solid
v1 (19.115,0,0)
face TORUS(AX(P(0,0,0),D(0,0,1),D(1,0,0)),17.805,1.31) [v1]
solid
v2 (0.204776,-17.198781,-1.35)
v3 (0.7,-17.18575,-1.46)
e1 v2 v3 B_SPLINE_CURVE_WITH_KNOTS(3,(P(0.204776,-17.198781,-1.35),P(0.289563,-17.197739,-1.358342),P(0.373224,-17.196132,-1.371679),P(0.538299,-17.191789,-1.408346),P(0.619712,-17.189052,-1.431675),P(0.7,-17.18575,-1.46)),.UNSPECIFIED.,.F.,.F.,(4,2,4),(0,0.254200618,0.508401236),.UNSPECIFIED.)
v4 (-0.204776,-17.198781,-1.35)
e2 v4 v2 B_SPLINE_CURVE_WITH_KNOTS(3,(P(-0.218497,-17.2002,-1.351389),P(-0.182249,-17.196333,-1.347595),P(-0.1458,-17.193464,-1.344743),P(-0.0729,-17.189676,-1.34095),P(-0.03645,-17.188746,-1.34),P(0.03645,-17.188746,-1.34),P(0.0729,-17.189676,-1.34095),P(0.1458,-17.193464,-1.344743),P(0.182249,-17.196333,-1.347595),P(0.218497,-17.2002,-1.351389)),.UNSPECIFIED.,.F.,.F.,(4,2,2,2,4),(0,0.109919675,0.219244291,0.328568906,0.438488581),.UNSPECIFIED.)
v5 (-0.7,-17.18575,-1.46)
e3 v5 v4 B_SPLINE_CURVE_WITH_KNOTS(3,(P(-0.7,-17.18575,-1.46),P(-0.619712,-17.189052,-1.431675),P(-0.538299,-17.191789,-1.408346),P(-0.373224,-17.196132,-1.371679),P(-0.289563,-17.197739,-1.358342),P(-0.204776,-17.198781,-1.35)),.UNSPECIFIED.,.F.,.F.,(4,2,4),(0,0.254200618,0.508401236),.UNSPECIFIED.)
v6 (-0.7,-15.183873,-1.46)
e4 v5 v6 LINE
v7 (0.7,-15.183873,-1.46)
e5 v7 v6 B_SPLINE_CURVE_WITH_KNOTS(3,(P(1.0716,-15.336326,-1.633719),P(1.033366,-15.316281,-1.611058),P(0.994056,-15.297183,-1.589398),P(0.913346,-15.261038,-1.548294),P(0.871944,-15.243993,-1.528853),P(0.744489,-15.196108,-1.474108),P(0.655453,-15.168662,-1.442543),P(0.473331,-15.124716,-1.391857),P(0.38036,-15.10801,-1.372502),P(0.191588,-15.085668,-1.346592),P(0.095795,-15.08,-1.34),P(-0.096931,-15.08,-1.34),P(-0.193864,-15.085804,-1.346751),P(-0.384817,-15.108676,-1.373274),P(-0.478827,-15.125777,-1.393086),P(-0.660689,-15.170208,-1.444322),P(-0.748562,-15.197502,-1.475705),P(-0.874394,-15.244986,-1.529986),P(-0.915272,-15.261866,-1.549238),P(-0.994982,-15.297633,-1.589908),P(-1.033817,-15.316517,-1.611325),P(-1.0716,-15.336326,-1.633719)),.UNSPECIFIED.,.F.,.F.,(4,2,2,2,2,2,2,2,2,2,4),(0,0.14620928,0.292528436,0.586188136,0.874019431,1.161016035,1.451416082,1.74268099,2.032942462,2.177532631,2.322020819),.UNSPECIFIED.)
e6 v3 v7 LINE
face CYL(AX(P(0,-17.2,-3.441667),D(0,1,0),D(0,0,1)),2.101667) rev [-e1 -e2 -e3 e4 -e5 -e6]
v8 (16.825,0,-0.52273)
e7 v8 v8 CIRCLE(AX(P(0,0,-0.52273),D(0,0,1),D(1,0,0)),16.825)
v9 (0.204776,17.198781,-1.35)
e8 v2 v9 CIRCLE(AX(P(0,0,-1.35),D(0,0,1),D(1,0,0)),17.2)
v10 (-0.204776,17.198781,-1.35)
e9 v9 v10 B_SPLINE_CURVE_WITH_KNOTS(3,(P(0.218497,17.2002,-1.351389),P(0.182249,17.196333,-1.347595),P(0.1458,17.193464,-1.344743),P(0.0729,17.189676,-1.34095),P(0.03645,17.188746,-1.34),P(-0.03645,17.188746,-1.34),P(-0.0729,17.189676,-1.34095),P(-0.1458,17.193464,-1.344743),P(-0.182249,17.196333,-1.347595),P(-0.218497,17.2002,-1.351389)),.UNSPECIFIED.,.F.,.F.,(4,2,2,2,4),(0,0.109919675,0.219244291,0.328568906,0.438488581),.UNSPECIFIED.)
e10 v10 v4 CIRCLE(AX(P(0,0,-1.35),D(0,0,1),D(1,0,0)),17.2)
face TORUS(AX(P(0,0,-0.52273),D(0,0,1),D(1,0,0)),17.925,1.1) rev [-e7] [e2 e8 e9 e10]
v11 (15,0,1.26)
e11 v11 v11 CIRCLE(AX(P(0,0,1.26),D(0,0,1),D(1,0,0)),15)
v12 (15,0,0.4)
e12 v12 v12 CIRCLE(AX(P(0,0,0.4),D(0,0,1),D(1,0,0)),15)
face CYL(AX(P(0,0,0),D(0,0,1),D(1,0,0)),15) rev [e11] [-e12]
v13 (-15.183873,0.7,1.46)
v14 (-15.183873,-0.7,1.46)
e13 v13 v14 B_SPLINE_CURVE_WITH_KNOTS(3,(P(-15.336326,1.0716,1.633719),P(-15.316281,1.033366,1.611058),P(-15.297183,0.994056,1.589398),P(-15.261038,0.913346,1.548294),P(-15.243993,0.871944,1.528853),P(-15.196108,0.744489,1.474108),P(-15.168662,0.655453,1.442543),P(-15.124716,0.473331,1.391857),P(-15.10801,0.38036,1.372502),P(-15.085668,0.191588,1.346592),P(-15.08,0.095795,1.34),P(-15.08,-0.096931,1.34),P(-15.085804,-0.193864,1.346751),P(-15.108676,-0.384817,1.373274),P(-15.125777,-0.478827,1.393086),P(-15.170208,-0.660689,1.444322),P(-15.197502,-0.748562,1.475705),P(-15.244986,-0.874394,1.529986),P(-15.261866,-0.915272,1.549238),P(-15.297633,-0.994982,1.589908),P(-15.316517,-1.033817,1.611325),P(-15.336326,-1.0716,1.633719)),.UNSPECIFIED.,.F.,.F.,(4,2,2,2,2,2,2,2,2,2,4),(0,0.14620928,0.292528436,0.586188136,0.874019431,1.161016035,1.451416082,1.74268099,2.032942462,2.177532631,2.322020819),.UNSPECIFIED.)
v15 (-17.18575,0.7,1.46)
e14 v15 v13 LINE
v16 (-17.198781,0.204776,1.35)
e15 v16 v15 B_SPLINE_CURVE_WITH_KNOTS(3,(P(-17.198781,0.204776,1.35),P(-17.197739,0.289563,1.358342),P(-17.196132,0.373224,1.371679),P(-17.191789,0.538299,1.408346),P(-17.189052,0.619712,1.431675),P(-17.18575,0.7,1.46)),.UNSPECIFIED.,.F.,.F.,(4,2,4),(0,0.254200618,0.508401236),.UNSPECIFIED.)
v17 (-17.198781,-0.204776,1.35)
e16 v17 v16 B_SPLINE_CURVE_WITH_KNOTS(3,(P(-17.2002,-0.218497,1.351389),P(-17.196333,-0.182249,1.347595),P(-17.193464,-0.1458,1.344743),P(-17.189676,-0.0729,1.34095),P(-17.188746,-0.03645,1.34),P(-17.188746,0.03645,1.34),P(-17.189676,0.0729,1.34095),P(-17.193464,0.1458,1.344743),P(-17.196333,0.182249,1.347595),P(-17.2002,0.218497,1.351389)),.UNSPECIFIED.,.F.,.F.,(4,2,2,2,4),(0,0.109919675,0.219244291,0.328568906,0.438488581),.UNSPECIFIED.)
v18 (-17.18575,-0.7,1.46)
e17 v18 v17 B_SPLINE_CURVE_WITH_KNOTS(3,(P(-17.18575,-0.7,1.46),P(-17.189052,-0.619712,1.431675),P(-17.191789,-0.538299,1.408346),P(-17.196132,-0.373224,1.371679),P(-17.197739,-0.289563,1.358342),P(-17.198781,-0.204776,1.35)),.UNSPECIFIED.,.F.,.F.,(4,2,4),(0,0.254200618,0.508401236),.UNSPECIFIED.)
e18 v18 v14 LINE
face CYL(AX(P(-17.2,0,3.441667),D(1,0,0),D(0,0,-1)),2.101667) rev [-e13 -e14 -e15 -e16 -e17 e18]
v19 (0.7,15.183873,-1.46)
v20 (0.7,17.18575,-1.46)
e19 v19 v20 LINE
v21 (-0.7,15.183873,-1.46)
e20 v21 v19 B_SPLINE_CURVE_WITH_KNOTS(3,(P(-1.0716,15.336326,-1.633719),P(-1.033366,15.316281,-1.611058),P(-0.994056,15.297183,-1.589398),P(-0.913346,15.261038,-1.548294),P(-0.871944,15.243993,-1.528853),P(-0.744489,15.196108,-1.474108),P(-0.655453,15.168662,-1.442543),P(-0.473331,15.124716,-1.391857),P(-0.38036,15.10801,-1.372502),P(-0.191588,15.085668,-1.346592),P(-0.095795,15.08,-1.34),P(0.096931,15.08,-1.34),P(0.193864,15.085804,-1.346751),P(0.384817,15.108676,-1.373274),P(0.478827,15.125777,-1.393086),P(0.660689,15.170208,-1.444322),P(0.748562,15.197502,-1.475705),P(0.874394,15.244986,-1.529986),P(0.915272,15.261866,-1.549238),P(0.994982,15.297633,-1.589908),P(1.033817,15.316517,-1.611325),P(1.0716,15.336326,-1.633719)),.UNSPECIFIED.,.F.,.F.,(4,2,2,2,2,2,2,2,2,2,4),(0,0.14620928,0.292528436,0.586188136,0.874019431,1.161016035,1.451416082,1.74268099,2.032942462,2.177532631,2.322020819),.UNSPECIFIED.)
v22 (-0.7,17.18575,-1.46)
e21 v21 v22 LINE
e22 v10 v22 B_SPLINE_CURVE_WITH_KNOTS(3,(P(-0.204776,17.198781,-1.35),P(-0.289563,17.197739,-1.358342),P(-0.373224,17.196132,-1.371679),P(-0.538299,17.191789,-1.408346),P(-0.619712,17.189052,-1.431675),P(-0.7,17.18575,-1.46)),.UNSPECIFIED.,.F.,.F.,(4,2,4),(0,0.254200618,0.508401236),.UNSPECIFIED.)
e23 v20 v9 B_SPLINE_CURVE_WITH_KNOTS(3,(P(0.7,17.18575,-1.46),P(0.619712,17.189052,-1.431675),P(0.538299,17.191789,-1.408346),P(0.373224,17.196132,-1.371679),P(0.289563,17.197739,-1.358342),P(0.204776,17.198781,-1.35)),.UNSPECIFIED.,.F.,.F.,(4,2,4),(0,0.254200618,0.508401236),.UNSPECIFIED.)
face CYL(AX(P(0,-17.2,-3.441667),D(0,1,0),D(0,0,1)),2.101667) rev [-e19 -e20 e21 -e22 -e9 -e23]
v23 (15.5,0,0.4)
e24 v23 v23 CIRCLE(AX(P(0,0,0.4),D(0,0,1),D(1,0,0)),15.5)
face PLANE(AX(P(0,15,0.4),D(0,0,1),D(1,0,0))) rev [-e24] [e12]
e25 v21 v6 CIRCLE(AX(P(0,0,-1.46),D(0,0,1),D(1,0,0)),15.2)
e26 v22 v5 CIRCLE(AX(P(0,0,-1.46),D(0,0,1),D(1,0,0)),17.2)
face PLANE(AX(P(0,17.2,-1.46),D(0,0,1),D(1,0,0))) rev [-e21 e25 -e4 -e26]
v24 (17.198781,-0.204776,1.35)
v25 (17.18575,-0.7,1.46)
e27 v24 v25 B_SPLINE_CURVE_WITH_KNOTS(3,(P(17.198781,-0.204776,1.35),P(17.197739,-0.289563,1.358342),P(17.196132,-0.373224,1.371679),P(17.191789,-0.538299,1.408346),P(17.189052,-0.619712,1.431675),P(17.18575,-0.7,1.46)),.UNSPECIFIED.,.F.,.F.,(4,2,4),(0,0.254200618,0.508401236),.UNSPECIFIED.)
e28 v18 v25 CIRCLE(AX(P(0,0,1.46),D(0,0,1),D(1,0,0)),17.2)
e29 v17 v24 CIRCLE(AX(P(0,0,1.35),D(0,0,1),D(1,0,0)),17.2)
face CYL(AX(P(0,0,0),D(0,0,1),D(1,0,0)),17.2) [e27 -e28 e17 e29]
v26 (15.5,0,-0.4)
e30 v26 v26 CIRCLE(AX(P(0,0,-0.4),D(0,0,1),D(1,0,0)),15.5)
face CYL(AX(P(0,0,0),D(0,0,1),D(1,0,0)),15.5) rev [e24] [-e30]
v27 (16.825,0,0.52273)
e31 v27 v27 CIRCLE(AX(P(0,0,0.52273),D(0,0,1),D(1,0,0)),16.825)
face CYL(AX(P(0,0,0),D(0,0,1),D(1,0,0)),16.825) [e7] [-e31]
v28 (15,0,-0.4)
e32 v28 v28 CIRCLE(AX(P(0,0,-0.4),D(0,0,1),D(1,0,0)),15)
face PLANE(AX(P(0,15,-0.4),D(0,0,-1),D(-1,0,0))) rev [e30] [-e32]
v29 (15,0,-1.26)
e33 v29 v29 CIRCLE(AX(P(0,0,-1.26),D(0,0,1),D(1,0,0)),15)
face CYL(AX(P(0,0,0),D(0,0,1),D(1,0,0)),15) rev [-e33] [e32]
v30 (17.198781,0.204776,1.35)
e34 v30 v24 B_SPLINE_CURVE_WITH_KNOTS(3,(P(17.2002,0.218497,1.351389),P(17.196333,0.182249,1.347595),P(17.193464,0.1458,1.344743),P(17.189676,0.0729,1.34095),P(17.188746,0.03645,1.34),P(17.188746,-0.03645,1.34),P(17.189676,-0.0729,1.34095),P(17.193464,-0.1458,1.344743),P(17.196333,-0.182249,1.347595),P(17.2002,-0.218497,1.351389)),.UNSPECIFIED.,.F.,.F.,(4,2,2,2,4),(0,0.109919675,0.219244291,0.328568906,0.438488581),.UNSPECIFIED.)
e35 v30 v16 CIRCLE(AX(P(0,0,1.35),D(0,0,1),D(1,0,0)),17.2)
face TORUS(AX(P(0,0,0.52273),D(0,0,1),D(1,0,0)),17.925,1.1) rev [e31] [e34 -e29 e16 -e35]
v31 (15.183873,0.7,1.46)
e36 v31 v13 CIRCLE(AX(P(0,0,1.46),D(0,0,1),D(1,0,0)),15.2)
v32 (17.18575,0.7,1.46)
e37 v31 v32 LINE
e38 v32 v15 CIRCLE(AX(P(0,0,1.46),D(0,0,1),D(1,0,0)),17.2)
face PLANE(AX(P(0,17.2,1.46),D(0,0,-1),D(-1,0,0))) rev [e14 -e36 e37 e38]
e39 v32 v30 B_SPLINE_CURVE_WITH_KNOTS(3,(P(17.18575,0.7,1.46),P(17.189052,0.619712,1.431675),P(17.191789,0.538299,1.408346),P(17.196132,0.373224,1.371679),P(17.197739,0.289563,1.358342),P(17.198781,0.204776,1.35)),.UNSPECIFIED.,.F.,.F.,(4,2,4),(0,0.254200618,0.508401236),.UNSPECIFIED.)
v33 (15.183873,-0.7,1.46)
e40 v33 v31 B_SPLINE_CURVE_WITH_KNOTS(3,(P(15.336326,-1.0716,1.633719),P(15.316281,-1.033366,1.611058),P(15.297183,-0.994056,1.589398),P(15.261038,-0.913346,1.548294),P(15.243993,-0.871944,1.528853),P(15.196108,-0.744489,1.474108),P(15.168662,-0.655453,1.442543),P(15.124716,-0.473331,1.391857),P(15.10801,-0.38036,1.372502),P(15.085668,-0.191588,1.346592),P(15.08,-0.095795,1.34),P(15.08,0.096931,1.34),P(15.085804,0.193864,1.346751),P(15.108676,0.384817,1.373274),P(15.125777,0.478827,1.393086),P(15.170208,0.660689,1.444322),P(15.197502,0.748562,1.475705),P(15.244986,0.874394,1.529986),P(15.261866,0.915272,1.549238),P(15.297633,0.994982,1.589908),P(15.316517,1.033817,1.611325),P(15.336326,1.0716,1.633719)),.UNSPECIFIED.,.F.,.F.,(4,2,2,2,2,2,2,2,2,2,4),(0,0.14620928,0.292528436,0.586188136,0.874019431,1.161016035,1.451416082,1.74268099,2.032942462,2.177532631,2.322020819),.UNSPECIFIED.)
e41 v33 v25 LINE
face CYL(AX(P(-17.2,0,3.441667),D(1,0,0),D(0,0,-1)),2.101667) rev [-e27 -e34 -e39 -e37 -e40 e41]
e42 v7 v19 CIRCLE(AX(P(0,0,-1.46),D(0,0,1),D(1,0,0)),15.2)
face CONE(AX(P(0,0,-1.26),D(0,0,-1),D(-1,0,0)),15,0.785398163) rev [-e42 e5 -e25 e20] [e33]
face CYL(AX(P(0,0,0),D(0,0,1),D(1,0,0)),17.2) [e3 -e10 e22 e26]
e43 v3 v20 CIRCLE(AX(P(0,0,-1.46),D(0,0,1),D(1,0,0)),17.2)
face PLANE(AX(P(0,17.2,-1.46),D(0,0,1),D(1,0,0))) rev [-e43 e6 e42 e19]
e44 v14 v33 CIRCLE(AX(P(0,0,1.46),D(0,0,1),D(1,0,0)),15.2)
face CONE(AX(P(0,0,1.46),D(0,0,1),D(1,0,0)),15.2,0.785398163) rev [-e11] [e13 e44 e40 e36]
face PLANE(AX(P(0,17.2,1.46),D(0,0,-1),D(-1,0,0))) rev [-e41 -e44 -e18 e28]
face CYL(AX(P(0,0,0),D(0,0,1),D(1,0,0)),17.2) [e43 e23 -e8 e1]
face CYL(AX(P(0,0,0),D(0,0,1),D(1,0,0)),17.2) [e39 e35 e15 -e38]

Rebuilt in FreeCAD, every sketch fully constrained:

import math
import FreeCAD as App
import Part
import Sketcher

V = App.Vector

doc = App.newDocument("Part")
body = doc.addObject("PartDesign::Body", "Body")

# Sketch on YZ plane
sketch1 = body.newObject("Sketcher::SketchObject", "Sketch")
sketch1.AttachmentSupport = (doc.getObject("YZ_Plane"), [""])
sketch1.MapMode = "FlatFace"
sketch1.addGeometry([
    Part.LineSegment(V(17.2, 1.35, 0), V(17.2, 1.46, 0)),  # 0
    Part.LineSegment(V(17.2, 1.46, 0), V(15.2, 1.46, 0)),  # 1
    Part.LineSegment(V(15.2, 1.46, 0), V(15, 1.26, 0)),  # 2
    Part.LineSegment(V(15, 1.26, 0), V(15, 0.4, 0)),  # 3
    Part.LineSegment(V(15, 0.4, 0), V(15.5, 0.4, 0)),  # 4
    Part.LineSegment(V(15.5, 0.4, 0), V(15.5, -0.4, 0)),  # 5
    Part.LineSegment(V(15.5, -0.4, 0), V(15, -0.4, 0)),  # 6
    Part.LineSegment(V(15, -0.4, 0), V(15, -1.26, 0)),  # 7
    Part.LineSegment(V(15, -1.26, 0), V(15.2, -1.46, 0)),  # 8
    Part.LineSegment(V(15.2, -1.46, 0), V(17.2, -1.46, 0)),  # 9
    Part.LineSegment(V(17.2, -1.46, 0), V(17.2, -1.35, 0)),  # 10
    Part.ArcOfCircle(Part.Circle(V(17.93, -0.52, 0), V(0, 0, 1), 1.1), math.radians(-180), math.radians(-131)),  # 11
    Part.LineSegment(V(16.82, -0.52, 0), V(16.82, 0.52, 0)),  # 12
    Part.ArcOfCircle(Part.Circle(V(17.93, 0.52, 0), V(0, 0, 1), 1.1), math.radians(131), math.radians(180)),  # 13
], False)
sketch1.addConstraint([
    Sketcher.Constraint("Coincident", 0, 2, 1, 1),
    Sketcher.Constraint("Coincident", 1, 2, 2, 1),
    Sketcher.Constraint("Coincident", 2, 2, 3, 1),
    Sketcher.Constraint("Coincident", 3, 2, 4, 1),
    Sketcher.Constraint("Coincident", 4, 2, 5, 1),
    Sketcher.Constraint("Coincident", 5, 2, 6, 1),
    Sketcher.Constraint("Coincident", 6, 2, 7, 1),
    Sketcher.Constraint("Coincident", 7, 2, 8, 1),
    Sketcher.Constraint("Coincident", 8, 2, 9, 1),
    Sketcher.Constraint("Coincident", 9, 2, 10, 1),
    Sketcher.Constraint("Coincident", 10, 2, 11, 2),
    Sketcher.Constraint("Tangent", 11, 1, 12, 1),
    Sketcher.Constraint("Tangent", 12, 2, 13, 2),
    Sketcher.Constraint("Coincident", 13, 1, 0, 1),
    Sketcher.Constraint("Vertical", 0),
    Sketcher.Constraint("Horizontal", 1),
    Sketcher.Constraint("Vertical", 3),
    Sketcher.Constraint("Horizontal", 4),
    Sketcher.Constraint("Vertical", 5),
    Sketcher.Constraint("Horizontal", 6),
    Sketcher.Constraint("Vertical", 7),
    Sketcher.Constraint("Horizontal", 9),
    Sketcher.Constraint("Vertical", 10),
    Sketcher.Constraint("Vertical", 12),
    Sketcher.Constraint("Equal", 11, 13),
    Sketcher.Constraint("Symmetric", 3, 2, 6, 2, -1),
    Sketcher.Constraint("Symmetric", 1, 2, 8, 2, -1),
    Sketcher.Constraint("Symmetric", 10, 2, 13, 1, -1),
    Sketcher.Constraint("Perpendicular", 2, 8),
    Sketcher.Constraint("Equal", 3, 7),
    Sketcher.Constraint("Radius", 11, 1.1),
    Sketcher.Constraint("DistanceX", 1, 2, 1, 1, 2.0),
    Sketcher.Constraint("DistanceX", 4, 1, 4, 2, 0.5),
    Sketcher.Constraint("DistanceY", 5, 2, 5, 1, 0.8),
    Sketcher.Constraint("DistanceX", -1, 1, 2, 2, 15.0),
    Sketcher.Constraint("DistanceY", 0, 1, 0, 2, 0.11),
    Sketcher.Constraint("DistanceY", 3, 2, 3, 1, 0.86),
    Sketcher.Constraint("DistanceX", -1, 1, 0, 2, 17.2),
    Sketcher.Constraint("DistanceX", -1, 1, 11, 3, 17.925),
])
revolution = body.newObject("PartDesign::Revolution", "Revolution")
revolution.Profile = sketch1
revolution.ReferenceAxis = (sketch1, ["V_Axis"])
revolution.Angle = 360

# Sketch on XZ plane
sketch2 = body.newObject("Sketcher::SketchObject", "Sketch001")
sketch2.AttachmentSupport = (doc.getObject("XZ_Plane"), [""])
sketch2.MapMode = "FlatFace"
sketch2.addGeometry([
    Part.LineSegment(V(0.7, -1.5, 0), V(-0.7, -1.5, 0)),
    Part.ArcOfCircle(Part.Circle(V(0, -3.4, 0), V(0, 0, 1), 2.1), math.radians(71), math.radians(109)),
], False)
sketch2.addConstraint([
    Sketcher.Constraint("Coincident", 0, 1, 1, 1),
    Sketcher.Constraint("Coincident", 1, 2, 0, 2),
    Sketcher.Constraint("Horizontal", 0),
    Sketcher.Constraint("PointOnObject", 1, 3, -2),
    Sketcher.Constraint("DistanceX", 0, 2, 0, 1, 1.4),
    Sketcher.Constraint("DistanceY", 0, 1, -1, 1, 1.46),
    Sketcher.Constraint("Radius", 1, 2.101667),
])
pocket1 = body.newObject("PartDesign::Pocket", "Pocket")
pocket1.Profile = sketch2
pocket1.Type = "ThroughAll"
pocket1.Midplane = True

# Sketch on YZ plane
sketch3 = body.newObject("Sketcher::SketchObject", "Sketch002")
sketch3.AttachmentSupport = (doc.getObject("YZ_Plane"), [""])
sketch3.MapMode = "FlatFace"
sketch3.addGeometry([
    Part.LineSegment(V(0.7, 1.5, 0), V(-0.7, 1.5, 0)),
    Part.ArcOfCircle(Part.Circle(V(0, 3.4, 0), V(0, 0, 1), 2.1), math.radians(-109), math.radians(-71)),
], False)
sketch3.addConstraint([
    Sketcher.Constraint("Coincident", 0, 1, 1, 2),
    Sketcher.Constraint("Coincident", 1, 1, 0, 2),
    Sketcher.Constraint("Horizontal", 0),
    Sketcher.Constraint("PointOnObject", 1, 3, -2),
    Sketcher.Constraint("DistanceX", 0, 2, 0, 1, 1.4),
    Sketcher.Constraint("DistanceY", -1, 1, 0, 1, 1.46),
    Sketcher.Constraint("Radius", 1, 2.101667),
])
pocket2 = body.newObject("PartDesign::Pocket", "Pocket001")
pocket2.Profile = sketch3
pocket2.Type = "ThroughAll"
pocket2.Midplane = True
body2 = doc.addObject("PartDesign::Body", "Body001")

# Sketch on YZ plane
sketch4 = body2.newObject("Sketcher::SketchObject", "Sketch003")
sketch4.AttachmentSupport = (doc.getObject("YZ_Plane001"), [""])
sketch4.MapMode = "FlatFace"
sketch4.addGeometry(Part.Circle(V(17.8, 0, 0), V(0, 0, 1), 1.3), False)
sketch4.addConstraint([
    Sketcher.Constraint("PointOnObject", 0, 3, -1),
    Sketcher.Constraint("Diameter", 0, 2.62),
    Sketcher.Constraint("DistanceX", -1, 1, 0, 3, 17.805),
])
revolution2 = body2.newObject("PartDesign::Revolution", "Revolution001")
revolution2.Profile = sketch4
revolution2.ReferenceAxis = (sketch4, ["V_Axis"])
revolution2.Angle = 360

doc.recompute()
